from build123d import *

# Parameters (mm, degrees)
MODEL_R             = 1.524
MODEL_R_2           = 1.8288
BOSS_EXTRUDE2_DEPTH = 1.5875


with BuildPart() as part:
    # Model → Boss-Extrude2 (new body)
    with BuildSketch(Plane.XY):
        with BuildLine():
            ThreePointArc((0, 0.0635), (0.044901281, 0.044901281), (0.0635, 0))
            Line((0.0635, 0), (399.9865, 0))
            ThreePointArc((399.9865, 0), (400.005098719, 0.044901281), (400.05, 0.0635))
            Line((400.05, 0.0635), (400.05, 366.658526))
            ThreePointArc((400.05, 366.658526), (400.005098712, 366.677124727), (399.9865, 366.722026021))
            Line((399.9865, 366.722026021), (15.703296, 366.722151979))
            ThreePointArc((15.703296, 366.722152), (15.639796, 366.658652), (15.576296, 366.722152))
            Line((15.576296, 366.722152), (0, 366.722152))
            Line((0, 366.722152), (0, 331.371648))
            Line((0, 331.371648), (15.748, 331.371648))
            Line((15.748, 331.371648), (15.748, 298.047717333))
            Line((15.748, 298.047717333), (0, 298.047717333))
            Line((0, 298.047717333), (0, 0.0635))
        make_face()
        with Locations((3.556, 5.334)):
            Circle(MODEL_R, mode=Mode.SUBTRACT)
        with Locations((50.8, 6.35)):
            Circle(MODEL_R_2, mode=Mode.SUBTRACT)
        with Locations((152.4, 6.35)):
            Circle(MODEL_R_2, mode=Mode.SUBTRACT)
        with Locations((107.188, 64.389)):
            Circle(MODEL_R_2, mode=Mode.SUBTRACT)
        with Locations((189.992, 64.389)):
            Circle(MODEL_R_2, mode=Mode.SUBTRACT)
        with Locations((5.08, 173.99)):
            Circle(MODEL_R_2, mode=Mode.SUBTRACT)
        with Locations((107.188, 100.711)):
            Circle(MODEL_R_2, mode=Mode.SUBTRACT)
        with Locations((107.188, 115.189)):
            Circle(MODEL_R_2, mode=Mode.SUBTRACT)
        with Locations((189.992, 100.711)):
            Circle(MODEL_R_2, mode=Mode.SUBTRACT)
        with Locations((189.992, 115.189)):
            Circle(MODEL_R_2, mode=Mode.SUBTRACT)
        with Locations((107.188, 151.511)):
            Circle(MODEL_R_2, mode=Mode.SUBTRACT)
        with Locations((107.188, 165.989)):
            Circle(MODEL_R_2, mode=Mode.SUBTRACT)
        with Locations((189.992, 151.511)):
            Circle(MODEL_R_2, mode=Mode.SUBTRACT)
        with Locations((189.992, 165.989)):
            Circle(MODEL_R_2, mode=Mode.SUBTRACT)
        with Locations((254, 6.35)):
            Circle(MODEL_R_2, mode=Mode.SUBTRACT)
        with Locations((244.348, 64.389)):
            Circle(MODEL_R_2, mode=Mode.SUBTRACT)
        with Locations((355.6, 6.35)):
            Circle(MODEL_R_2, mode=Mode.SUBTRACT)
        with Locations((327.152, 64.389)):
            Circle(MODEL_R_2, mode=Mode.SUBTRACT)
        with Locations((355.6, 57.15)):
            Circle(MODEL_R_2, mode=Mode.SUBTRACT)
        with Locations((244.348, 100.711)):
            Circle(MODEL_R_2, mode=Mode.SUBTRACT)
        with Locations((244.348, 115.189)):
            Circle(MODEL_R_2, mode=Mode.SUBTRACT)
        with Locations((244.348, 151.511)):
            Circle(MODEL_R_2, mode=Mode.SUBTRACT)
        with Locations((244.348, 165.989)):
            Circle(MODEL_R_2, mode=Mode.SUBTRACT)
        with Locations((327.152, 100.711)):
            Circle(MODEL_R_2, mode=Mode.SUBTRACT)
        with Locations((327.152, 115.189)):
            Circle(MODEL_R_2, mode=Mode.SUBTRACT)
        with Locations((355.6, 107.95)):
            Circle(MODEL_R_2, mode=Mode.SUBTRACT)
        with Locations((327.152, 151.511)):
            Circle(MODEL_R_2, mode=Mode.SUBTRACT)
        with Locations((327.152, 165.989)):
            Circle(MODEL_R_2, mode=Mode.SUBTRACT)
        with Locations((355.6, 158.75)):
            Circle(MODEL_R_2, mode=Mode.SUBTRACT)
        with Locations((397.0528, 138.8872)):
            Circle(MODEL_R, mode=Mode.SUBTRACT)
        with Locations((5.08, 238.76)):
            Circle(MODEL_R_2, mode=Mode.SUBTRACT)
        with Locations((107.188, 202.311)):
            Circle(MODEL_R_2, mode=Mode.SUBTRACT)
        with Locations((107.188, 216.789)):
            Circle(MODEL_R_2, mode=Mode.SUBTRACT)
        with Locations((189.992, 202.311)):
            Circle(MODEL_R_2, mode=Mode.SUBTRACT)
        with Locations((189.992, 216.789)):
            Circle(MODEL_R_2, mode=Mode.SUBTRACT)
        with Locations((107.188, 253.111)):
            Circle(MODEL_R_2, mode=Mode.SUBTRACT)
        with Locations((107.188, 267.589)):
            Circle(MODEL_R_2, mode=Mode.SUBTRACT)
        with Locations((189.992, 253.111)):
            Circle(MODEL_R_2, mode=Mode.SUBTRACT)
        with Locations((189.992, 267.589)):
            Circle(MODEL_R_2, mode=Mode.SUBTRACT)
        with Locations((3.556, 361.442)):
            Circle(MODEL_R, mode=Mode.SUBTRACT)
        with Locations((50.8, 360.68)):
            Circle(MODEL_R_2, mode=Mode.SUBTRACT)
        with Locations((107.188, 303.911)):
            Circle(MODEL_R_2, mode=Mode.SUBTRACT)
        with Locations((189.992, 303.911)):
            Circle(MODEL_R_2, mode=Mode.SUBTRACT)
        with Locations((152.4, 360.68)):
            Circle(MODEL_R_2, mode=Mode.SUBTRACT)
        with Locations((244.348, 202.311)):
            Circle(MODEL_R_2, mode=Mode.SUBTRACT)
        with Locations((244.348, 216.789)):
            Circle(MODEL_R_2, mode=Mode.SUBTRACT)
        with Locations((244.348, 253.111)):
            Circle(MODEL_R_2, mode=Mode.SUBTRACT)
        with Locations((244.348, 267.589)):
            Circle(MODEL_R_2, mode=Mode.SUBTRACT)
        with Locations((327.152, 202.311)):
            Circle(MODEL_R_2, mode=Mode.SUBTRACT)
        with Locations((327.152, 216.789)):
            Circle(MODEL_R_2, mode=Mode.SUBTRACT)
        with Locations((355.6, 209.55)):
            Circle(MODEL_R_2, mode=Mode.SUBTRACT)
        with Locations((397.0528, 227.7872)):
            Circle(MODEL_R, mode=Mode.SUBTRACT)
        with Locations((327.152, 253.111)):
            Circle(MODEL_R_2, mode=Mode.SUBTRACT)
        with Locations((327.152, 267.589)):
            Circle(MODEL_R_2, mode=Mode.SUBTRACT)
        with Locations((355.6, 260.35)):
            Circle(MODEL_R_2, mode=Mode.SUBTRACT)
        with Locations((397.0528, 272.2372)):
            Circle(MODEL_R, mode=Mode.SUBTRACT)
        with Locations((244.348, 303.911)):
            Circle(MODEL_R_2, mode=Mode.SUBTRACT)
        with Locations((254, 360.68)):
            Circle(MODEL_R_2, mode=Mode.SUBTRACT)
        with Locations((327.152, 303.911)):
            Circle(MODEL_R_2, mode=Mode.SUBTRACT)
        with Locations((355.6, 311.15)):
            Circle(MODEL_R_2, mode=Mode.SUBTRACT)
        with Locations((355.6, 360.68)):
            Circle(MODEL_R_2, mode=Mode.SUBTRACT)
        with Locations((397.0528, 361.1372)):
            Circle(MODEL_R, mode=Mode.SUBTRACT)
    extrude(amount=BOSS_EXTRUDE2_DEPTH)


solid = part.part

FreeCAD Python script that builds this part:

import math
import FreeCAD as App
import Part
import Sketcher
from FreeCAD import Vector
Q = App.Units.Quantity

doc = App.newDocument("Part")
body = doc.addObject("PartDesign::Body", "Body")

sketch1 = body.newObject("Sketcher::SketchObject", "Sketch")
sketch1.AttachmentSupport = (doc.getObject("XY_Plane"), [""])
sketch1.MapMode = "FlatFace"
sketch1.addGeometry([
    Part.ArcOfCircle(Part.Circle(Vector(0, 0, 0), Vector(0, 0, 1), 0.06), math.radians(0), math.radians(90)),
    Part.LineSegment(Vector(0.06, 0, 0), Vector(399.99, 0, 0)),
    Part.ArcOfCircle(Part.Circle(Vector(400.05, 0, 0), Vector(0, 0, 1), 0.06), math.radians(90), math.radians(180)),
    Part.LineSegment(Vector(400.05, 0.06, 0), Vector(400.05, 366.66, 0)),
    Part.ArcOfCircle(Part.Circle(Vector(400.05, 366.72, 0), Vector(0, 0, 1), 0.06), math.radians(180), math.radians(270)),
    Part.LineSegment(Vector(399.99, 366.72, 0), Vector(15.7, 366.72, 0)),
    Part.ArcOfCircle(Part.Circle(Vector(15.64, 366.72, 0), Vector(0, 0, 1), 0.06), math.radians(180), math.radians(360)),
    Part.LineSegment(Vector(15.58, 366.72, 0), Vector(0, 366.72, 0)),
    Part.LineSegment(Vector(0, 366.72, 0), Vector(0, 331.37, 0)),
    Part.LineSegment(Vector(0, 331.37, 0), Vector(15.75, 331.37, 0)),
    Part.LineSegment(Vector(15.75, 331.37, 0), Vector(15.75, 298.05, 0)),
    Part.LineSegment(Vector(15.75, 298.05, 0), Vector(0, 298.05, 0)),
    Part.LineSegment(Vector(0, 298.05, 0), Vector(0, 0.06, 0)),
    Part.Circle(Vector(3.56, 5.33, 0), Vector(0, 0, 1), 1.52),
    Part.Circle(Vector(50.8, 6.35, 0), Vector(0, 0, 1), 1.83),
    Part.Circle(Vector(152.4, 6.35, 0), Vector(0, 0, 1), 1.83),
    Part.Circle(Vector(107.19, 64.39, 0), Vector(0, 0, 1), 1.83),
    Part.Circle(Vector(189.99, 64.39, 0), Vector(0, 0, 1), 1.83),
    Part.Circle(Vector(5.08, 173.99, 0), Vector(0, 0, 1), 1.83),
    Part.Circle(Vector(107.19, 100.71, 0), Vector(0, 0, 1), 1.83),
    Part.Circle(Vector(107.19, 115.19, 0), Vector(0, 0, 1), 1.83),
    Part.Circle(Vector(189.99, 100.71, 0), Vector(0, 0, 1), 1.83),
    Part.Circle(Vector(189.99, 115.19, 0), Vector(0, 0, 1), 1.83),
    Part.Circle(Vector(107.19, 151.51, 0), Vector(0, 0, 1), 1.83),
    Part.Circle(Vector(107.19, 165.99, 0), Vector(0, 0, 1), 1.83),
    Part.Circle(Vector(189.99, 151.51, 0), Vector(0, 0, 1), 1.83),
    Part.Circle(Vector(189.99, 165.99, 0), Vector(0, 0, 1), 1.83),
    Part.Circle(Vector(254, 6.35, 0), Vector(0, 0, 1), 1.83),
    Part.Circle(Vector(244.35, 64.39, 0), Vector(0, 0, 1), 1.83),
    Part.Circle(Vector(355.6, 6.35, 0), Vector(0, 0, 1), 1.83),
    Part.Circle(Vector(327.15, 64.39, 0), Vector(0, 0, 1), 1.83),
    Part.Circle(Vector(355.6, 57.15, 0), Vector(0, 0, 1), 1.83),
    Part.Circle(Vector(244.35, 100.71, 0), Vector(0, 0, 1), 1.83),
    Part.Circle(Vector(244.35, 115.19, 0), Vector(0, 0, 1), 1.83),
    Part.Circle(Vector(244.35, 151.51, 0), Vector(0, 0, 1), 1.83),
    Part.Circle(Vector(244.35, 165.99, 0), Vector(0, 0, 1), 1.83),
    Part.Circle(Vector(327.15, 100.71, 0), Vector(0, 0, 1), 1.83),
    Part.Circle(Vector(327.15, 115.19, 0), Vector(0, 0, 1), 1.83),
    Part.Circle(Vector(355.6, 107.95, 0), Vector(0, 0, 1), 1.83),
    Part.Circle(Vector(327.15, 151.51, 0), Vector(0, 0, 1), 1.83),
    Part.Circle(Vector(327.15, 165.99, 0), Vector(0, 0, 1), 1.83),
    Part.Circle(Vector(355.6, 158.75, 0), Vector(0, 0, 1), 1.83),
    Part.Circle(Vector(397.05, 138.89, 0), Vector(0, 0, 1), 1.52),
    Part.Circle(Vector(5.08, 238.76, 0), Vector(0, 0, 1), 1.83),
    Part.Circle(Vector(107.19, 202.31, 0), Vector(0, 0, 1), 1.83),
    Part.Circle(Vector(107.19, 216.79, 0), Vector(0, 0, 1), 1.83),
    Part.Circle(Vector(189.99, 202.31, 0), Vector(0, 0, 1), 1.83),
    Part.Circle(Vector(189.99, 216.79, 0), Vector(0, 0, 1), 1.83),
    Part.Circle(Vector(107.19, 253.11, 0), Vector(0, 0, 1), 1.83),
    Part.Circle(Vector(107.19, 267.59, 0), Vector(0, 0, 1), 1.83),
    Part.Circle(Vector(189.99, 253.11, 0), Vector(0, 0, 1), 1.83),
    Part.Circle(Vector(189.99, 267.59, 0), Vector(0, 0, 1), 1.83),
    Part.Circle(Vector(3.56, 361.44, 0), Vector(0, 0, 1), 1.52),
    Part.Circle(Vector(50.8, 360.68, 0), Vector(0, 0, 1), 1.83),
    Part.Circle(Vector(107.19, 303.91, 0), Vector(0, 0, 1), 1.83),
    Part.Circle(Vector(189.99, 303.91, 0), Vector(0, 0, 1), 1.83),
    Part.Circle(Vector(152.4, 360.68, 0), Vector(0, 0, 1), 1.83),
    Part.Circle(Vector(244.35, 202.31, 0), Vector(0, 0, 1), 1.83),
    Part.Circle(Vector(244.35, 216.79, 0), Vector(0, 0, 1), 1.83),
    Part.Circle(Vector(244.35, 253.11, 0), Vector(0, 0, 1), 1.83),
    Part.Circle(Vector(244.35, 267.59, 0), Vector(0, 0, 1), 1.83),
    Part.Circle(Vector(327.15, 202.31, 0), Vector(0, 0, 1), 1.83),
    Part.Circle(Vector(327.15, 216.79, 0), Vector(0, 0, 1), 1.83),
    Part.Circle(Vector(355.6, 209.55, 0), Vector(0, 0, 1), 1.83),
    Part.Circle(Vector(397.05, 227.79, 0), Vector(0, 0, 1), 1.52),
    Part.Circle(Vector(327.15, 253.11, 0), Vector(0, 0, 1), 1.83),
    Part.Circle(Vector(327.15, 267.59, 0), Vector(0, 0, 1), 1.83),
    Part.Circle(Vector(355.6, 260.35, 0), Vector(0, 0, 1), 1.83),
    Part.Circle(Vector(397.05, 272.24, 0), Vector(0, 0, 1), 1.52),
    Part.Circle(Vector(244.35, 303.91, 0), Vector(0, 0, 1), 1.83),
    Part.Circle(Vector(254, 360.68, 0), Vector(0, 0, 1), 1.83),
    Part.Circle(Vector(327.15, 303.91, 0), Vector(0, 0, 1), 1.83),
    Part.Circle(Vector(355.6, 311.15, 0), Vector(0, 0, 1), 1.83),
    Part.Circle(Vector(355.6, 360.68, 0), Vector(0, 0, 1), 1.83),
    Part.Circle(Vector(397.05, 361.14, 0), Vector(0, 0, 1), 1.52),
], False)
sketch1.addConstraint([
    Sketcher.Constraint("Coincident", 0, 1, 1, 1),
    Sketcher.Constraint("Coincident", 1, 2, 2, 2),
    Sketcher.Constraint("Coincident", 2, 1, 3, 1),
    Sketcher.Constraint("Coincident", 3, 2, 4, 2),
    Sketcher.Constraint("Coincident", 4, 1, 5, 1),
    Sketcher.Constraint("Coincident", 5, 2, 6, 2),
    Sketcher.Constraint("Coincident", 6, 1, 7, 1),
    Sketcher.Constraint("Coincident", 7, 2, 8, 1),
    Sketcher.Constraint("Coincident", 8, 2, 9, 1),
    Sketcher.Constraint("Coincident", 9, 2, 10, 1),
    Sketcher.Constraint("Coincident", 10, 2, 11, 1),
    Sketcher.Constraint("Coincident", 11, 2, 12, 1),
    Sketcher.Constraint("Coincident", 12, 2, 0, 2),
    Sketcher.Constraint("Horizontal", 1),
    Sketcher.Constraint("Vertical", 3),
    Sketcher.Constraint("Horizontal", 7),
    Sketcher.Constraint("Vertical", 8),
    Sketcher.Constraint("Horizontal", 9),
    Sketcher.Constraint("Vertical", 10),
    Sketcher.Constraint("Horizontal", 11),
    Sketcher.Constraint("Vertical", 12),
    Sketcher.Constraint("Coincident", 0, 3, -1, 1),
    Sketcher.Constraint("Equal", 0, 2),
    Sketcher.Constraint("Equal", 2, 4),
    Sketcher.Constraint("Equal", 4, 6),
    Sketcher.Constraint("Equal", 14, 15),
    Sketcher.Constraint("Equal", 15, 16),
    Sketcher.Constraint("Equal", 16, 17),
    Sketcher.Constraint("Equal", 17, 18),
    Sketcher.Constraint("Equal", 18, 19),
    Sketcher.Constraint("Equal", 19, 20),
    Sketcher.Constraint("Equal", 20, 21),
    Sketcher.Constraint("Equal", 21, 22),
    Sketcher.Constraint("Equal", 22, 23),
    Sketcher.Constraint("Equal", 23, 24),
    Sketcher.Constraint("Equal", 24, 25),
    Sketcher.Constraint("Equal", 25, 26),
    Sketcher.Constraint("Equal", 26, 27),
    Sketcher.Constraint("Equal", 27, 28),
    Sketcher.Constraint("Equal", 28, 29),
    Sketcher.Constraint("Equal", 29, 30),
    Sketcher.Constraint("Equal", 30, 31),
    Sketcher.Constraint("Equal", 31, 32),
    Sketcher.Constraint("Equal", 32, 33),
    Sketcher.Constraint("Equal", 33, 34),
    Sketcher.Constraint("Equal", 34, 35),
    Sketcher.Constraint("Equal", 35, 36),
    Sketcher.Constraint("Equal", 36, 37),
    Sketcher.Constraint("Equal", 37, 38),
    Sketcher.Constraint("Equal", 38, 39),
    Sketcher.Constraint("Equal", 39, 40),
    Sketcher.Constraint("Equal", 40, 41),
    Sketcher.Constraint("Equal", 13, 42),
    Sketcher.Constraint("Equal", 41, 43),
    Sketcher.Constraint("Equal", 43, 44),
    Sketcher.Constraint("Equal", 44, 45),
    Sketcher.Constraint("Equal", 45, 46),
    Sketcher.Constraint("Equal", 46, 47),
    Sketcher.Constraint("Equal", 47, 48),
    Sketcher.Constraint("Equal", 48, 49),
    Sketcher.Constraint("Equal", 49, 50),
    Sketcher.Constraint("Equal", 50, 51),
    Sketcher.Constraint("Equal", 42, 52),
    Sketcher.Constraint("Equal", 51, 53),
    Sketcher.Constraint("Equal", 53, 54),
    Sketcher.Constraint("Equal", 54, 55),
    Sketcher.Constraint("Equal", 55, 56),
    Sketcher.Constraint("Equal", 56, 57),
    Sketcher.Constraint("Equal", 57, 58),
    Sketcher.Constraint("Equal", 58, 59),
    Sketcher.Constraint("Equal", 59, 60),
    Sketcher.Constraint("Equal", 60, 61),
    Sketcher.Constraint("Equal", 61, 62),
    Sketcher.Constraint("Equal", 62, 63),
    Sketcher.Constraint("Equal", 52, 64),
    Sketcher.Constraint("Equal", 63, 65),
    Sketcher.Constraint("Equal", 65, 66),
    Sketcher.Constraint("Equal", 66, 67),
    Sketcher.Constraint("Equal", 64, 68),
    Sketcher.Constraint("Equal", 67, 69),
    Sketcher.Constraint("Equal", 69, 70),
    Sketcher.Constraint("Equal", 70, 71),
    Sketcher.Constraint("Equal", 71, 72),
    Sketcher.Constraint("Equal", 72, 73),
    Sketcher.Constraint("Equal", 68, 74),
    Sketcher.Constraint("PointOnObject", 2, 3, -1),
    Sketcher.Constraint("PointOnObject", 0, 1, -1),
    Sketcher.Constraint("PointOnObject", 7, 2, -2),
    Sketcher.Constraint("PointOnObject", 11, 2, -2),
    Sketcher.Constraint("Horizontal", 14, 3, 15, 3),
    Sketcher.Constraint("Horizontal", 16, 3, 17, 3),
    Sketcher.Constraint("Horizontal", 19, 3, 21, 3),
    Sketcher.Constraint("Horizontal", 20, 3, 22, 3),
    Sketcher.Constraint("Horizontal", 23, 3, 25, 3),
    Sketcher.Constraint("Horizontal", 24, 3, 26, 3),
    Sketcher.Constraint("Horizontal", 15, 3, 27, 3),
    Sketcher.Constraint("Horizontal", 17, 3, 28, 3),
    Sketcher.Constraint("Horizontal", 27, 3, 29, 3),
    Sketcher.Constraint("Horizontal", 28, 3, 30, 3),
    Sketcher.Constraint("Horizontal", 21, 3, 32, 3),
    Sketcher.Constraint("Horizontal", 22, 3, 33, 3),
    Sketcher.Constraint("Horizontal", 25, 3, 34, 3),
    Sketcher.Constraint("Horizontal", 26, 3, 35, 3),
    Sketcher.Constraint("Horizontal", 32, 3, 36, 3),
    Sketcher.Constraint("Horizontal", 33, 3, 37, 3),
    Sketcher.Constraint("Horizontal", 34, 3, 39, 3),
    Sketcher.Constraint("Horizontal", 35, 3, 40, 3),
    Sketcher.Constraint("Horizontal", 44, 3, 46, 3),
    Sketcher.Constraint("Horizontal", 45, 3, 47, 3),
    Sketcher.Constraint("Horizontal", 48, 3, 50, 3),
    Sketcher.Constraint("Horizontal", 49, 3, 51, 3),
    Sketcher.Constraint("Horizontal", 54, 3, 55, 3),
    Sketcher.Constraint("Horizontal", 53, 3, 56, 3),
    Sketcher.Constraint("Horizontal", 46, 3, 57, 3),
    Sketcher.Constraint("Horizontal", 47, 3, 58, 3),
    Sketcher.Constraint("Horizontal", 50, 3, 59, 3),
    Sketcher.Constraint("Horizontal", 51, 3, 60, 3),
    Sketcher.Constraint("Horizontal", 57, 3, 61, 3),
    Sketcher.Constraint("Horizontal", 58, 3, 62, 3),
    Sketcher.Constraint("Horizontal", 59, 3, 65, 3),
    Sketcher.Constraint("Horizontal", 60, 3, 66, 3),
    Sketcher.Constraint("Horizontal", 55, 3, 69, 3),
    Sketcher.Constraint("Horizontal", 56, 3, 70, 3),
    Sketcher.Constraint("Horizontal", 69, 3, 71, 3),
    Sketcher.Constraint("Horizontal", 70, 3, 73, 3),
    Sketcher.Constraint("Horizontal", 6, 3, 5, 2),
    Sketcher.Constraint("Horizontal", 5, 2, 6, 1),
    Sketcher.Constraint("Vertical", 2, 3, 4, 3),
    Sketcher.Constraint("Vertical", 16, 3, 19, 3),
    Sketcher.Constraint("Vertical", 19, 3, 20, 3),
    Sketcher.Constraint("Vertical", 17, 3, 21, 3),
    Sketcher.Constraint("Vertical", 21, 3, 22, 3),
    Sketcher.Constraint("Vertical", 20, 3, 23, 3),
    Sketcher.Constraint("Vertical", 23, 3, 24, 3),
    Sketcher.Constraint("Vertical", 22, 3, 25, 3),
    Sketcher.Constraint("Vertical", 25, 3, 26, 3),
    Sketcher.Constraint("Vertical", 29, 3, 31, 3),
    Sketcher.Constraint("Vertical", 28, 3, 32, 3),
    Sketcher.Constraint("Vertical", 32, 3, 33, 3),
    Sketcher.Constraint("Vertical", 33, 3, 34, 3),
    Sketcher.Constraint("Vertical", 34, 3, 35, 3),
    Sketcher.Constraint("Vertical", 30, 3, 36, 3),
    Sketcher.Constraint("Vertical", 36, 3, 37, 3),
    Sketcher.Constraint("Vertical", 31, 3, 38, 3),
    Sketcher.Constraint("Vertical", 37, 3, 39, 3),
    Sketcher.Constraint("Vertical", 39, 3, 40, 3),
    Sketcher.Constraint("Vertical", 38, 3, 41, 3),
    Sketcher.Constraint("Vertical", 18, 3, 43, 3),
    Sketcher.Constraint("Vertical", 24, 3, 44, 3),
    Sketcher.Constraint("Vertical", 44, 3, 45, 3),
    Sketcher.Constraint("Vertical", 26, 3, 46, 3),
    Sketcher.Constraint("Vertical", 46, 3, 47, 3),
    Sketcher.Constraint("Vertical", 45, 3, 48, 3),
    Sketcher.Constraint("Vertical", 48, 3, 49, 3),
    Sketcher.Constraint("Vertical", 47, 3, 50, 3),
    Sketcher.Constraint("Vertical", 50, 3, 51, 3),
    Sketcher.Constraint("Vertical", 13, 3, 52, 3),
    Sketcher.Constraint("Vertical", 14, 3, 53, 3),
    Sketcher.Constraint("Vertical", 49, 3, 54, 3),
    Sketcher.Constraint("Vertical", 51, 3, 55, 3),
    Sketcher.Constraint("Vertical", 15, 3, 56, 3),
    Sketcher.Constraint("Vertical", 35, 3, 57, 3),
    Sketcher.Constraint("Vertical", 57, 3, 58, 3),
    Sketcher.Constraint("Vertical", 58, 3, 59, 3),
    Sketcher.Constraint("Vertical", 59, 3, 60, 3),
    Sketcher.Constraint("Vertical", 40, 3, 61, 3),
    Sketcher.Constraint("Vertical", 61, 3, 62, 3),
    Sketcher.Constraint("Vertical", 41, 3, 63, 3),
    Sketcher.Constraint("Vertical", 42, 3, 64, 3),
    Sketcher.Constraint("Vertical", 62, 3, 65, 3),
    Sketcher.Constraint("Vertical", 65, 3, 66, 3),
    Sketcher.Constraint("Vertical", 63, 3, 67, 3),
    Sketcher.Constraint("Vertical", 64, 3, 68, 3),
    Sketcher.Constraint("Vertical", 60, 3, 69, 3),
    Sketcher.Constraint("Vertical", 27, 3, 70, 3),
    Sketcher.Constraint("Vertical", 66, 3, 71, 3),
    Sketcher.Constraint("Vertical", 67, 3, 72, 3),
    Sketcher.Constraint("Vertical", 72, 3, 73, 3),
    Sketcher.Constraint("Vertical", 68, 3, 74, 3),
    Sketcher.Constraint("Vertical", 4, 3, 2, 1),
    Sketcher.Constraint("Diameter", 13, Q("0.12 in")),
    Sketcher.Constraint("Diameter", 14, Q("0.144 in")),
    Sketcher.Constraint("DistanceX", -1, 1, 14, 3, Q("2 in")),
    Sketcher.Constraint("DistanceX", -1, 1, 15, 3, Q("6 in")),
    Sketcher.Constraint("DistanceX", -1, 1, 27, 3, Q("10 in")),
    Sketcher.Constraint("DistanceX", -1, 1, 29, 3, Q("14 in")),
    Sketcher.Constraint("Angle", 5, Q("179.999981 deg")),
    Sketcher.Constraint("DistanceX", 9, 1, 9, 2, Q("0.62 in")),
    Sketcher.Constraint("DistanceX", -1, 1, 18, 3, Q("0.2 in")),
    Sketcher.Constraint("DistanceY", -1, 1, 43, 3, Q("9.4 in")),
    Sketcher.Constraint("DistanceY", -1, 1, 53, 3, Q("14.2 in")),
    Sketcher.Constraint("Radius", 0, Q("0.0025 in")),
    Sketcher.Constraint("DistanceX", 1, 1, 1, 2, Q("15.745 in")),
    Sketcher.Constraint("DistanceX", -1, 1, 13, 3, Q("0.14 in")),
    Sketcher.Constraint("DistanceY", -1, 1, 13, 3, Q("0.21 in")),
    Sketcher.Constraint("DistanceY", -1, 1, 14, 3, Q("0.25 in")),
    Sketcher.Constraint("DistanceX", -1, 1, 16, 3, Q("4.22 in")),
    Sketcher.Constraint("DistanceX", -1, 1, 17, 3, Q("7.48 in")),
    Sketcher.Constraint("DistanceY", -1, 1, 18, 3, Q("6.85 in")),
    Sketcher.Constraint("DistanceX", -1, 1, 28, 3, Q("9.62 in")),
    Sketcher.Constraint("DistanceX", -1, 1, 30, 3, Q("12.88 in")),
    Sketcher.Constraint("DistanceY", -1, 1, 31, 3, Q("2.25 in")),
    Sketcher.Constraint("DistanceY", -1, 1, 38, 3, Q("4.25 in")),
    Sketcher.Constraint("DistanceY", -1, 1, 41, 3, Q("6.25 in")),
    Sketcher.Constraint("DistanceY", -1, 1, 52, 3, Q("14.23 in")),
    Sketcher.Constraint("DistanceY", -1, 1, 63, 3, Q("8.25 in")),
    Sketcher.Constraint("DistanceY", -1, 1, 67, 3, Q("10.25 in")),
    Sketcher.Constraint("DistanceY", -1, 1, 72, 3, Q("12.25 in")),
    Sketcher.Constraint("DistanceY", -1, 1, 16, 3, Q("2.535 in")),
    Sketcher.Constraint("DistanceY", -1, 1, 19, 3, Q("3.965 in")),
    Sketcher.Constraint("DistanceY", -1, 1, 20, 3, Q("4.535 in")),
    Sketcher.Constraint("DistanceY", -1, 1, 23, 3, Q("5.965 in")),
    Sketcher.Constraint("DistanceY", -1, 1, 24, 3, Q("6.535 in")),
    Sketcher.Constraint("DistanceX", -1, 1, 42, 3, Q("15.632 in")),
    Sketcher.Constraint("DistanceY", -1, 1, 42, 3, Q("5.468 in")),
    Sketcher.Constraint("DistanceY", -1, 1, 44, 3, Q("7.965 in")),
    Sketcher.Constraint("DistanceY", -1, 1, 45, 3, Q("8.535 in")),
    Sketcher.Constraint("DistanceY", -1, 1, 48, 3, Q("9.965 in")),
    Sketcher.Constraint("DistanceY", -1, 1, 49, 3, Q("10.535 in")),
    Sketcher.Constraint("DistanceY", -1, 1, 54, 3, Q("11.965 in")),
    Sketcher.Constraint("DistanceY", -1, 1, 64, 3, Q("8.968 in")),
    Sketcher.Constraint("DistanceY", -1, 1, 68, 3, Q("10.718 in")),
    Sketcher.Constraint("DistanceY", -1, 1, 74, 3, Q("14.218 in")),
    Sketcher.Constraint("DistanceY", 10, 2, 10, 1, 33.323931),
    Sketcher.Constraint("DistanceX", 7, 2, 7, 1, 15.576296),
    Sketcher.Constraint("DistanceY", 3, 1, 3, 2, 366.595026),
    Sketcher.Constraint("DistanceY", 8, 2, 8, 1, 35.350504),
    Sketcher.Constraint("DistanceY", 12, 2, 12, 1, 297.984217),
])
pad1 = body.newObject("PartDesign::Pad", "Pad")
pad1.Profile = sketch1
pad1.Length = Q("0.0625 in")

doc.recompute()
